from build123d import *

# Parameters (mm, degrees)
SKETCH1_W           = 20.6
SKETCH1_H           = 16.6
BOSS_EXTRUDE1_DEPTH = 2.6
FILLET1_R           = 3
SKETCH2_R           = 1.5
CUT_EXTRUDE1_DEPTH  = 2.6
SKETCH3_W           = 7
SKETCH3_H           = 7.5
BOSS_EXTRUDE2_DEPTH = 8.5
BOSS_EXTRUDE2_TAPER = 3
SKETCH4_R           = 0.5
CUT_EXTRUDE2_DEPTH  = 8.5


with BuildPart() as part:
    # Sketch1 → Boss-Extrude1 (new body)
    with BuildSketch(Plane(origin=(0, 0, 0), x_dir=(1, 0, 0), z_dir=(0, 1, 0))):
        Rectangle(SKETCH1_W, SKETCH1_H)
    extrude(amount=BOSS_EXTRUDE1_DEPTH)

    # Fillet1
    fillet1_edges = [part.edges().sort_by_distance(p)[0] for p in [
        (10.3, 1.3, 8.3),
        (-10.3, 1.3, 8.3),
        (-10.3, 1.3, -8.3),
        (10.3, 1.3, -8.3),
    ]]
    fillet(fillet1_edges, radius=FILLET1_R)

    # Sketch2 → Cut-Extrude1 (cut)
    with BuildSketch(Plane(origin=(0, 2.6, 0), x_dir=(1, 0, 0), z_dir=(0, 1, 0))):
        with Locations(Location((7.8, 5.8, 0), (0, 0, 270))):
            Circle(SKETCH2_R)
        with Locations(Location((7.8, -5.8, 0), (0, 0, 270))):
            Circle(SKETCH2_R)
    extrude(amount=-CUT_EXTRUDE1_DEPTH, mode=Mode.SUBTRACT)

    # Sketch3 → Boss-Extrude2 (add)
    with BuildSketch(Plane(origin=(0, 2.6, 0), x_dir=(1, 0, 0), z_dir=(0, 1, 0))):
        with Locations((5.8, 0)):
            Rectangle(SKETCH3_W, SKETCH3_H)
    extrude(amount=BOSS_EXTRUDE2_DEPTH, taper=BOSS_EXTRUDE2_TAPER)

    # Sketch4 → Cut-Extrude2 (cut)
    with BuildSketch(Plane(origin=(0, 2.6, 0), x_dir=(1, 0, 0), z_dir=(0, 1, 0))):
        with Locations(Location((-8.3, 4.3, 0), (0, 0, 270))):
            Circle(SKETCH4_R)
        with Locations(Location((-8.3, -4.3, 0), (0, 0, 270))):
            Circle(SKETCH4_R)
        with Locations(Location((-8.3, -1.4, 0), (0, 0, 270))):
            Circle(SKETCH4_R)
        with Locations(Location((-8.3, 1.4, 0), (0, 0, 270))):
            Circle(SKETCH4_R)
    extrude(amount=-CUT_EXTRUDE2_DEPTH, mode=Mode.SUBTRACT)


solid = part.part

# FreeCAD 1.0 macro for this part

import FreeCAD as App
import Part
import Sketcher

V = App.Vector
Q = App.Units.Quantity


def edges_at(feature, points):
    """Names of the edges that pass closest to the given points."""
    edges = feature.Shape.Edges
    near = lambda p: min(range(len(edges)), key=lambda i: edges[i].distToShape(Part.Vertex(*p))[0])
    return sorted({f"Edge{near(p) + 1}" for p in points})

doc = App.newDocument("Part")
body = doc.addObject("PartDesign::Body", "Body")

# Sketch on XZ plane
sketch1 = doc.addObject("Sketcher::SketchObject", "Sketch")
body.addObject(sketch1)
sketch1.AttachmentSupport = (doc.XZ_Plane, [""])
sketch1.MapMode = "FlatFace"
sketch1.addGeometry([
    Part.LineSegment(V(-10, -8, 0), V(-10, 8, 0)),
    Part.LineSegment(V(-10, 8, 0), V(10, 8, 0)),
    Part.LineSegment(V(10, 8, 0), V(10, -8, 0)),
    Part.LineSegment(V(10, -8, 0), V(-10, -8, 0)),
], False)
sketch1.addConstraint([
    Sketcher.Constraint("Coincident", 0, 2, 1, 1),
    Sketcher.Constraint("Coincident", 1, 2, 2, 1),
    Sketcher.Constraint("Coincident", 2, 2, 3, 1),
    Sketcher.Constraint("Coincident", 3, 2, 0, 1),
    Sketcher.Constraint("Vertical", 0),
    Sketcher.Constraint("Horizontal", 1),
    Sketcher.Constraint("Vertical", 2),
    Sketcher.Constraint("Horizontal", 3),
    Sketcher.Constraint("Symmetric", 0, 2, 2, 2, -1, 1),
    Sketcher.Constraint("DistanceX", 1, 1, 1, 2, Q("20.6 mm")),
    Sketcher.Constraint("DistanceY", 0, 1, 0, 2, Q("16.6 mm")),
])
pad1 = doc.addObject("PartDesign::Pad", "Pad")
body.addObject(pad1)
pad1.Profile = sketch1
pad1.Length = 2.6
pad1.Reversed = True
doc.recompute()

fillet = doc.addObject("PartDesign::Fillet", "Fillet")
body.addObject(fillet)
fillet.Base = (pad1, edges_at(pad1, [
    (10.3, 1.3, 8.3),
    (-10.3, 1.3, 8.3),
    (-10.3, 1.3, -8.3),
    (10.3, 1.3, -8.3),
]))
fillet.Radius = 3

# Sketch on XZ plane
sketch2 = doc.addObject("Sketcher::SketchObject", "Sketch001")
body.addObject(sketch2)
sketch2.AttachmentSupport = (doc.XZ_Plane, [""])
sketch2.MapMode = "FlatFace"
sketch2.AttachmentOffset = App.Placement(V(0, 0, -2.6), App.Rotation())
sketch2.addGeometry([
    Part.Circle(V(7.8, -5.8, 0), V(0, 0, 1), 1.5),
    Part.Circle(V(7.8, 5.8, 0), V(0, 0, 1), 1.5),
], False)
sketch2.addConstraint([
    Sketcher.Constraint("Equal", 0, 1),
    Sketcher.Constraint("Symmetric", 0, 3, 1, 3, -1),
    Sketcher.Constraint("Diameter", 0, Q("3 mm")),
    Sketcher.Constraint("DistanceX", -1, 1, 0, 3, Q("7.8 mm")),
    Sketcher.Constraint("DistanceY", 0, 3, -1, 1, Q("5.8 mm")),
])
pocket1 = doc.addObject("PartDesign::Pocket", "Pocket")
body.addObject(pocket1)
pocket1.Profile = sketch2
pocket1.Length = 2.6
pocket1.Reversed = True

# Sketch on XZ plane
sketch3 = doc.addObject("Sketcher::SketchObject", "Sketch002")
body.addObject(sketch3)
sketch3.AttachmentSupport = (doc.XZ_Plane, [""])
sketch3.MapMode = "FlatFace"
sketch3.AttachmentOffset = App.Placement(V(0, 0, -2.6), App.Rotation())
sketch3.addGeometry([
    Part.LineSegment(V(2, -4, 0), V(2, 4, 0)),
    Part.LineSegment(V(2, 4, 0), V(9, 4, 0)),
    Part.LineSegment(V(9, 4, 0), V(9, -4, 0)),
    Part.LineSegment(V(9, -4, 0), V(2, -4, 0)),
], False)
sketch3.addConstraint([
    Sketcher.Constraint("Coincident", 0, 2, 1, 1),
    Sketcher.Constraint("Coincident", 1, 2, 2, 1),
    Sketcher.Constraint("Coincident", 2, 2, 3, 1),
    Sketcher.Constraint("Coincident", 3, 2, 0, 1),
    Sketcher.Constraint("Vertical", 0),
    Sketcher.Constraint("Horizontal", 1),
    Sketcher.Constraint("Vertical", 2),
    Sketcher.Constraint("Horizontal", 3),
    Sketcher.Constraint("DistanceX", 1, 1, 1, 2, Q("7 mm")),
    Sketcher.Constraint("DistanceY", 0, 1, 0, 2, Q("7.5 mm")),
    Sketcher.Constraint("DistanceX", -1, 1, 0, 2, Q("2.3 mm")),
    Sketcher.Constraint("DistanceY", -1, 1, 0, 2, Q("3.75 mm")),
])
pad2 = doc.addObject("PartDesign::Pad", "Pad001")
body.addObject(pad2)
pad2.Profile = sketch3
pad2.Length = 8.5
pad2.Reversed = True
pad2.TaperAngle = -3

# Sketch on XZ plane
sketch4 = doc.addObject("Sketcher::SketchObject", "Sketch003")
body.addObject(sketch4)
sketch4.AttachmentSupport = (doc.XZ_Plane, [""])
sketch4.MapMode = "FlatFace"
sketch4.AttachmentOffset = App.Placement(V(0, 0, -2.6), App.Rotation())
sketch4.addGeometry([
    Part.Circle(V(-8.3, -4.3, 0), V(0, 0, 1), 0.5),
    Part.Circle(V(-8.3, 4.3, 0), V(0, 0, 1), 0.5),
    Part.Circle(V(-8.3, 1.4, 0), V(0, 0, 1), 0.5),
    Part.Circle(V(-8.3, -1.4, 0), V(0, 0, 1), 0.5),
], False)
sketch4.addConstraint([
    Sketcher.Constraint("Equal", 0, 1),
    Sketcher.Constraint("Equal", 1, 2),
    Sketcher.Constraint("Equal", 2, 3),
    Sketcher.Constraint("Symmetric", 0, 3, 1, 3, -1),
    Sketcher.Constraint("Symmetric", 2, 3, 3, 3, -1),
    Sketcher.Constraint("Vertical", 1, 3, 2, 3),
    Sketcher.Constraint("Diameter", 0, Q("1 mm")),
    Sketcher.Constraint("DistanceX", 0, 3, -1, 1, Q("8.3 mm")),
    Sketcher.Constraint("DistanceY", 0, 3, -1, 1, Q("4.3 mm")),
    Sketcher.Constraint("DistanceY", -1, 1, 2, 3, Q("1.4 mm")),
])
pocket2 = doc.addObject("PartDesign::Pocket", "Pocket001")
body.addObject(pocket2)
pocket2.Profile = sketch4
pocket2.Length = 8.5
pocket2.Reversed = True

doc.recompute()
